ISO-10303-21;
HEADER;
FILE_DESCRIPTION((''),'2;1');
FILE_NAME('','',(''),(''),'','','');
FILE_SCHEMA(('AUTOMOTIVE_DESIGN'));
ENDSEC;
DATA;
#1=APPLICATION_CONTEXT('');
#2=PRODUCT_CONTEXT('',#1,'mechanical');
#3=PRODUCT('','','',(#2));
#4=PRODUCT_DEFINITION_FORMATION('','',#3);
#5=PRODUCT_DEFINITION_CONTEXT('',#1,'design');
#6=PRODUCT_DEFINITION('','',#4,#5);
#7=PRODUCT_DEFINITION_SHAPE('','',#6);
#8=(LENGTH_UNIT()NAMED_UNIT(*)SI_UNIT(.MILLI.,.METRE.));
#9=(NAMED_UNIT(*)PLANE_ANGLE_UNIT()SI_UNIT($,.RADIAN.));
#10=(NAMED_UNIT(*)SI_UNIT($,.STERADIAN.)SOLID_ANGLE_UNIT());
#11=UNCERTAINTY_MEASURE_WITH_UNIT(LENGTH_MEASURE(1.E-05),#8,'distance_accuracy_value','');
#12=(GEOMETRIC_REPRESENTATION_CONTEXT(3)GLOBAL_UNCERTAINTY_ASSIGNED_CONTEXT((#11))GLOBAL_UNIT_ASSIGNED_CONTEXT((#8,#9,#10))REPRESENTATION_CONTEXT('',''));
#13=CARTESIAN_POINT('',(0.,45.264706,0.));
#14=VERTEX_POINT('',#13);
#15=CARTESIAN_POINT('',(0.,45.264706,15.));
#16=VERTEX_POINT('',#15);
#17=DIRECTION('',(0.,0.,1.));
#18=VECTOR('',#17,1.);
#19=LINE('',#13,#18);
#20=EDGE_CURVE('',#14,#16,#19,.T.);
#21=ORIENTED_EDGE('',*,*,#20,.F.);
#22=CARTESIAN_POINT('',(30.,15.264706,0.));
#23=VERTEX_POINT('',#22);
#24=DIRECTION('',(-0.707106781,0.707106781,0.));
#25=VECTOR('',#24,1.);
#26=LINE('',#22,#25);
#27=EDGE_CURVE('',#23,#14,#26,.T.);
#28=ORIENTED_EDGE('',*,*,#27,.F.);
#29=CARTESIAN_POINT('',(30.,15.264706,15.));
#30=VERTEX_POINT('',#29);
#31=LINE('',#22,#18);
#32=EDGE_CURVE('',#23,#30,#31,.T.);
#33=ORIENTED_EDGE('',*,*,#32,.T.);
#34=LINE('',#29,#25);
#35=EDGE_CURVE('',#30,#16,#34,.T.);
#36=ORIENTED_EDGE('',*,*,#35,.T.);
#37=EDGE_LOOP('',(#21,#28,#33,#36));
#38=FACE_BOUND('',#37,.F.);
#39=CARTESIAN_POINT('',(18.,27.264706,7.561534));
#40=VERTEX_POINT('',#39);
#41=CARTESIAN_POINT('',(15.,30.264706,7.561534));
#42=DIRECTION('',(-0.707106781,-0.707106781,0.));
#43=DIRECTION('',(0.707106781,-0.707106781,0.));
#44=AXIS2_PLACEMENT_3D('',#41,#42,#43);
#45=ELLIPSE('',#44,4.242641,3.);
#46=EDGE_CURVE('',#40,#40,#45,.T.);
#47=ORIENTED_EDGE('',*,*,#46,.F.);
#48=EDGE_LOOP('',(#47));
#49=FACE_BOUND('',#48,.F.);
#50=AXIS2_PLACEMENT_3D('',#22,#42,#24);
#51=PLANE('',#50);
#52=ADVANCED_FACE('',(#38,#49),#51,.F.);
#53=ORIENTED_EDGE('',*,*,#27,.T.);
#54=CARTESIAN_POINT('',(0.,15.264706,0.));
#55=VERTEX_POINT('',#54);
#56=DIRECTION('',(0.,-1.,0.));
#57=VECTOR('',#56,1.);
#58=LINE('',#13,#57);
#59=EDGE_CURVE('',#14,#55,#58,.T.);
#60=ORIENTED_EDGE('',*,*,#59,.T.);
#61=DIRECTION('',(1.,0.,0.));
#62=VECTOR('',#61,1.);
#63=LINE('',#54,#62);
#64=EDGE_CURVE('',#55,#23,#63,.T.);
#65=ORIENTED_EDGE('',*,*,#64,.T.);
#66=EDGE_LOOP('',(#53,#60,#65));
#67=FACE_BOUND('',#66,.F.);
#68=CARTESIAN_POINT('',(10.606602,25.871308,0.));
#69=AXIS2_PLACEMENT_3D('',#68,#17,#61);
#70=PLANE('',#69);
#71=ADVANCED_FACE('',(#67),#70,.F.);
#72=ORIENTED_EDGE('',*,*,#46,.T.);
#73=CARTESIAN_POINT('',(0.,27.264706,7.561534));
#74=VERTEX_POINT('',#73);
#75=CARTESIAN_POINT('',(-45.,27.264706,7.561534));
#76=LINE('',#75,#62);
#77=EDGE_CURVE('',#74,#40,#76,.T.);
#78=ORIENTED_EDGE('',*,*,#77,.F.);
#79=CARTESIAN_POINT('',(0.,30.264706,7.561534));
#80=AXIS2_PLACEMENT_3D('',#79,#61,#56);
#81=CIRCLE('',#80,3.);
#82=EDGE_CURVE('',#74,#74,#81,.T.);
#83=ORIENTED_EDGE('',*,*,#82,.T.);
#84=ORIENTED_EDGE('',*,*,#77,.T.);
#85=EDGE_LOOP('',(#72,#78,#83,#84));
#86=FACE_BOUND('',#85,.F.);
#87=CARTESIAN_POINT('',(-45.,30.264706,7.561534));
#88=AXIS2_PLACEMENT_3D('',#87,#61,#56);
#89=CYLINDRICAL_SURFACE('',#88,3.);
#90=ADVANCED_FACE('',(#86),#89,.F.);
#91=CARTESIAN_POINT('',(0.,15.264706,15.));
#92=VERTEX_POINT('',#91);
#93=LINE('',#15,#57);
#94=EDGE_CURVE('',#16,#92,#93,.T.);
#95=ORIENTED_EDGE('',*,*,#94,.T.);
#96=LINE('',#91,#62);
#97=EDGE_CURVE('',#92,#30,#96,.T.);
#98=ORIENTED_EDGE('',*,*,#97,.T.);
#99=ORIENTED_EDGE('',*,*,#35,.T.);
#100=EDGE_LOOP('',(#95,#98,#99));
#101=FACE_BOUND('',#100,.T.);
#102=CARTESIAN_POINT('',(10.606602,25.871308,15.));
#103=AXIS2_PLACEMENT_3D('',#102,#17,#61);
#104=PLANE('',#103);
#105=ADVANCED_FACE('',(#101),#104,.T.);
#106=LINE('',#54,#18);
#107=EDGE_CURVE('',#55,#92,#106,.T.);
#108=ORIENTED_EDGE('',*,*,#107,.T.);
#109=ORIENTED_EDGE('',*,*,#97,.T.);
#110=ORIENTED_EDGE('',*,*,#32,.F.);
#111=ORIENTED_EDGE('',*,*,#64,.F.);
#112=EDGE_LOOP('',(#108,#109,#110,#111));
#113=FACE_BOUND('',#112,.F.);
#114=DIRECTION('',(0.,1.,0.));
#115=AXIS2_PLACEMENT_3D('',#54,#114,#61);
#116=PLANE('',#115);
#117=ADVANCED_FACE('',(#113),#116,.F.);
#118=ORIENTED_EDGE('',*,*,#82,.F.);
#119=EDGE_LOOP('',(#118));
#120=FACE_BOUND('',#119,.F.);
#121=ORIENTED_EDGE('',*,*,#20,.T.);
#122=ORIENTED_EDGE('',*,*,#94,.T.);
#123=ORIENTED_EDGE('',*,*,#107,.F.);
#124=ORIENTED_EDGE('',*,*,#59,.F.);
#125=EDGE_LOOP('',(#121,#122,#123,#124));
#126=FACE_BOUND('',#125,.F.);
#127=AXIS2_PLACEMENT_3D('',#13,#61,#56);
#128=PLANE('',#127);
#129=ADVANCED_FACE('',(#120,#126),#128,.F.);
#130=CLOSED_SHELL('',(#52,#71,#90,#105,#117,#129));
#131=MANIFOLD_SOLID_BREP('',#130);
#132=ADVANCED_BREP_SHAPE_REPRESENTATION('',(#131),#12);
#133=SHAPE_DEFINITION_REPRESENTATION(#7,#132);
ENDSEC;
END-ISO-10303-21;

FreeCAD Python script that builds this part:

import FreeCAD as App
import Part
import Sketcher
Q = App.Units.Quantity

doc = App.newDocument("Part")
params = doc.addObject("Spreadsheet::Sheet", "Params")
for row, (alias, value) in enumerate([
    ("sketch1_width", "30 mm"),
    ("pad1_length", "15 mm"),
    ("sketch2_diameter", "6 mm"),
    ("hole_diameter", "6 mm"),
], start=1):
    params.set(f"A{row}", alias)
    params.set(f"B{row}", "=" + value)
    params.setAlias(f"B{row}", alias)

body = doc.addObject("PartDesign::Body", "Body")

sketch1 = body.newObject("Sketcher::SketchObject", "Sketch")
sketch1.AttachmentSupport = (doc.getObject("XY_Plane"), [""])
sketch1.MapMode = "FlatFace"
sketch1.addGeometry(Part.LineSegment(App.Vector(30, 15.264706, 0), App.Vector(0, 45.264706, 0)), False)
sketch1.addGeometry(Part.LineSegment(App.Vector(0, 45.264706, 0), App.Vector(0, 15.264706, 0)), False)
sketch1.addGeometry(Part.LineSegment(App.Vector(0, 15.264706, 0), App.Vector(30, 15.264706, 0)), False)
sketch1.addConstraint(Sketcher.Constraint("Coincident", 0, 2, 1, 1))
sketch1.addConstraint(Sketcher.Constraint("Coincident", 1, 2, 2, 1))
sketch1.addConstraint(Sketcher.Constraint("Coincident", 2, 2, 0, 1))
sketch1.addConstraint(Sketcher.Constraint("Vertical", 1))
sketch1.addConstraint(Sketcher.Constraint("Horizontal", 2))
sketch1.addConstraint(Sketcher.Constraint("PointOnObject", 0, 2, -2))
sketch1.addConstraint(Sketcher.Constraint("Equal", 2, 1))
sketch1.addConstraint(Sketcher.Constraint("DistanceX", 2, 1, 2, 2, Q("30 mm")))
sketch1.addConstraint(Sketcher.Constraint("DistanceY", -1, 1, 0, 2, Q("45.264706 mm")))
sketch1.setExpression("Constraints[7]", "Params.sketch1_width")
pad1 = body.newObject("PartDesign::Pad", "Pad")
pad1.Profile = sketch1
pad1.setExpression("Length", "Params.pad1_length")

sketch2 = body.newObject("Sketcher::SketchObject", "Sketch001")
sketch2.AttachmentSupport = (doc.getObject("YZ_Plane"), [""])
sketch2.MapMode = "FlatFace"
sketch2.addGeometry(Part.Circle(App.Vector(30.264706, 7.561534, 0), App.Vector(0, 0, 1), 3), False)
sketch2.addConstraint(Sketcher.Constraint("Diameter", 0, Q("6 mm")))
sketch2.addConstraint(Sketcher.Constraint("DistanceX", -1, 1, 0, 3, Q("30.264706 mm")))
sketch2.addConstraint(Sketcher.Constraint("DistanceY", -1, 1, 0, 3, Q("7.561534 mm")))
sketch2.setExpression("Constraints[0]", "Params.sketch2_diameter")
doc.recompute()
hole = body.newObject("PartDesign::Hole", "Hole")
hole.Profile = sketch2
hole.ThreadType = "None"
hole.setExpression("Diameter", "Params.hole_diameter")
hole.DepthType = "ThroughAll"
hole.Reversed = True

doc.recompute()
